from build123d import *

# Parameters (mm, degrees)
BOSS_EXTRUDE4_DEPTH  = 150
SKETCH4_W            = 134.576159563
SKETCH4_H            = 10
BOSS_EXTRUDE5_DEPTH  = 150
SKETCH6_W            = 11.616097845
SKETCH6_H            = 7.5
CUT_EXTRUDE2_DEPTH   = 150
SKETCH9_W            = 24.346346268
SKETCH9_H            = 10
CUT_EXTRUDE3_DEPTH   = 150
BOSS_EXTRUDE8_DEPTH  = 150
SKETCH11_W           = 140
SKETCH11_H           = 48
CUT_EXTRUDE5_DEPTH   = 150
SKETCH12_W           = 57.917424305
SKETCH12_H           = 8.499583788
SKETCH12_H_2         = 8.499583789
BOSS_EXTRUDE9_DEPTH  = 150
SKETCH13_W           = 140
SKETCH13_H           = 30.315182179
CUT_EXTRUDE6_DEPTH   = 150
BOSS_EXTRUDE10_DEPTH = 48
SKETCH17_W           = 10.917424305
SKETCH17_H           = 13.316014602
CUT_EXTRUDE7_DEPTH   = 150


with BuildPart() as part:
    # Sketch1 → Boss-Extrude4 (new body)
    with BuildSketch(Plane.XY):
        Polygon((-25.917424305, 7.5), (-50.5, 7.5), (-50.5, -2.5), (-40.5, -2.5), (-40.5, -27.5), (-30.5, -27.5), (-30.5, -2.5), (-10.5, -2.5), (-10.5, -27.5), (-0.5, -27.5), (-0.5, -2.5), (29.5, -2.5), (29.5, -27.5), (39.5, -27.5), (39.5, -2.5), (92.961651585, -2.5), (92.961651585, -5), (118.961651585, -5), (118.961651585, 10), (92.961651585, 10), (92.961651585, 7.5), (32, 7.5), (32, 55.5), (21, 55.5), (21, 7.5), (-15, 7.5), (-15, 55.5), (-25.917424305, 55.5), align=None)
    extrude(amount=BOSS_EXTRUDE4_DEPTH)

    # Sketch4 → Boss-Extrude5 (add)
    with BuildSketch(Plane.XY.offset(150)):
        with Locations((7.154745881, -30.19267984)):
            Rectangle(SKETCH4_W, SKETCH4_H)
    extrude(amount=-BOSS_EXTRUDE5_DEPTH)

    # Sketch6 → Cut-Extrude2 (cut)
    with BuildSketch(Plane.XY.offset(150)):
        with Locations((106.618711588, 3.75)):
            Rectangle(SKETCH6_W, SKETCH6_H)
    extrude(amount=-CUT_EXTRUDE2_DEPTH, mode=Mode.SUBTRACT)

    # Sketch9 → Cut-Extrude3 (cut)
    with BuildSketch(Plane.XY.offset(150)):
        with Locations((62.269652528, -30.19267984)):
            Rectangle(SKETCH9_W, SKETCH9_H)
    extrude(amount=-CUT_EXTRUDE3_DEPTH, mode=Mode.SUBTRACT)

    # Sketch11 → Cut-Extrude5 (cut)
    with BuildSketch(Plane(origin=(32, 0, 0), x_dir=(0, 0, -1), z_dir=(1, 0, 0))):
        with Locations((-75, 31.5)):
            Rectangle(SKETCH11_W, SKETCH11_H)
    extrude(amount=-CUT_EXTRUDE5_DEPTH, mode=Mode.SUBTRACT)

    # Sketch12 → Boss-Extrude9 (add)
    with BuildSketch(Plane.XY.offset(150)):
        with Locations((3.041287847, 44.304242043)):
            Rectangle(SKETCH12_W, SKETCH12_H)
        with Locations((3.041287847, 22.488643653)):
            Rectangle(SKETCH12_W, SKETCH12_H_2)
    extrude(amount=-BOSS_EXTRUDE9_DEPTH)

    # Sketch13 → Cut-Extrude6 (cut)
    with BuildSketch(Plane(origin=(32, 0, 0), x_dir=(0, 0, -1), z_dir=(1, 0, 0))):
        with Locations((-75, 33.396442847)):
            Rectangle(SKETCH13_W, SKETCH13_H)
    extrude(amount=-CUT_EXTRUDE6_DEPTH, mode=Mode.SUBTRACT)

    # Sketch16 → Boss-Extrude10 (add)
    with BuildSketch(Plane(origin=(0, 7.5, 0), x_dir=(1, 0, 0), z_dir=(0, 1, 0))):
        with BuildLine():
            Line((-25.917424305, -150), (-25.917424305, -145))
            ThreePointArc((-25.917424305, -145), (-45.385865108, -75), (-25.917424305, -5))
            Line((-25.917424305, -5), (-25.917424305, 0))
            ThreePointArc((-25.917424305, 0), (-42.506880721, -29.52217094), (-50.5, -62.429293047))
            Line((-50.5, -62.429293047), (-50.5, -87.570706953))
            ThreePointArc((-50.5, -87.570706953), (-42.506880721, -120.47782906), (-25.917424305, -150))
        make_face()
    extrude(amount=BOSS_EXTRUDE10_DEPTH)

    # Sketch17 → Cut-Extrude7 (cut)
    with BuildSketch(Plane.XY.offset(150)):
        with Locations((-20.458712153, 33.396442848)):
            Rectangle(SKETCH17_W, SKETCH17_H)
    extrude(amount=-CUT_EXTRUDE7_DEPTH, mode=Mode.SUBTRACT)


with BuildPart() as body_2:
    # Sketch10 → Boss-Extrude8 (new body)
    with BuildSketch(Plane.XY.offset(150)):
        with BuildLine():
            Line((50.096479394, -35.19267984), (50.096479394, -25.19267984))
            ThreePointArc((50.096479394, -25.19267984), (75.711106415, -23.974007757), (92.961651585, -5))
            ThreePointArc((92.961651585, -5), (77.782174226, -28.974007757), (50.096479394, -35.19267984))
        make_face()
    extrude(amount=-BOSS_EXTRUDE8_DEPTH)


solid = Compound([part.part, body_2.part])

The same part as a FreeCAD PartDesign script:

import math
import FreeCAD as App
import Part
import Sketcher
from FreeCAD import Vector
Q = App.Units.Quantity

doc = App.newDocument("Part")
body = doc.addObject("PartDesign::Body", "Body")

sketch1 = body.newObject("Sketcher::SketchObject", "Sketch")
sketch1.AttachmentSupport = (doc.getObject("XY_Plane"), [""])
sketch1.MapMode = "FlatFace"
sketch1.addGeometry([
    Part.LineSegment(Vector(-25.9, 7.5, 0), Vector(-50.5, 7.5, 0)),
    Part.LineSegment(Vector(-50.5, 7.5, 0), Vector(-50.5, -2.5, 0)),
    Part.LineSegment(Vector(-50.5, -2.5, 0), Vector(-40.5, -2.5, 0)),
    Part.LineSegment(Vector(-40.5, -2.5, 0), Vector(-40.5, -27.5, 0)),
    Part.LineSegment(Vector(-40.5, -27.5, 0), Vector(-30.5, -27.5, 0)),
    Part.LineSegment(Vector(-30.5, -27.5, 0), Vector(-30.5, -2.5, 0)),
    Part.LineSegment(Vector(-30.5, -2.5, 0), Vector(-10.5, -2.5, 0)),
    Part.LineSegment(Vector(-10.5, -2.5, 0), Vector(-10.5, -27.5, 0)),
    Part.LineSegment(Vector(-10.5, -27.5, 0), Vector(-0.5, -27.5, 0)),
    Part.LineSegment(Vector(-0.5, -27.5, 0), Vector(-0.5, -2.5, 0)),
    Part.LineSegment(Vector(-0.5, -2.5, 0), Vector(29.5, -2.5, 0)),
    Part.LineSegment(Vector(29.5, -2.5, 0), Vector(29.5, -27.5, 0)),
    Part.LineSegment(Vector(29.5, -27.5, 0), Vector(39.5, -27.5, 0)),
    Part.LineSegment(Vector(39.5, -27.5, 0), Vector(39.5, -2.5, 0)),
    Part.LineSegment(Vector(39.5, -2.5, 0), Vector(93, -2.5, 0)),
    Part.LineSegment(Vector(93, -2.5, 0), Vector(93, -5, 0)),
    Part.LineSegment(Vector(93, -5, 0), Vector(119, -5, 0)),
    Part.LineSegment(Vector(119, -5, 0), Vector(119, 10, 0)),
    Part.LineSegment(Vector(119, 10, 0), Vector(93, 10, 0)),
    Part.LineSegment(Vector(93, 10, 0), Vector(93, 7.5, 0)),
    Part.LineSegment(Vector(93, 7.5, 0), Vector(32, 7.5, 0)),
    Part.LineSegment(Vector(32, 7.5, 0), Vector(32, 55.5, 0)),
    Part.LineSegment(Vector(32, 55.5, 0), Vector(21, 55.5, 0)),
    Part.LineSegment(Vector(21, 55.5, 0), Vector(21, 7.5, 0)),
    Part.LineSegment(Vector(21, 7.5, 0), Vector(-15, 7.5, 0)),
    Part.LineSegment(Vector(-15, 7.5, 0), Vector(-15, 55.5, 0)),
    Part.LineSegment(Vector(-15, 55.5, 0), Vector(-25.9, 55.5, 0)),
    Part.LineSegment(Vector(-25.9, 55.5, 0), Vector(-25.9, 7.5, 0)),
], False)
sketch1.addConstraint([
    Sketcher.Constraint("Coincident", 0, 2, 1, 1),
    Sketcher.Constraint("Coincident", 1, 2, 2, 1),
    Sketcher.Constraint("Coincident", 2, 2, 3, 1),
    Sketcher.Constraint("Coincident", 3, 2, 4, 1),
    Sketcher.Constraint("Coincident", 4, 2, 5, 1),
    Sketcher.Constraint("Coincident", 5, 2, 6, 1),
    Sketcher.Constraint("Coincident", 6, 2, 7, 1),
    Sketcher.Constraint("Coincident", 7, 2, 8, 1),
    Sketcher.Constraint("Coincident", 8, 2, 9, 1),
    Sketcher.Constraint("Coincident", 9, 2, 10, 1),
    Sketcher.Constraint("Coincident", 10, 2, 11, 1),
    Sketcher.Constraint("Coincident", 11, 2, 12, 1),
    Sketcher.Constraint("Coincident", 12, 2, 13, 1),
    Sketcher.Constraint("Coincident", 13, 2, 14, 1),
    Sketcher.Constraint("Coincident", 14, 2, 15, 1),
    Sketcher.Constraint("Coincident", 15, 2, 16, 1),
    Sketcher.Constraint("Coincident", 16, 2, 17, 1),
    Sketcher.Constraint("Coincident", 17, 2, 18, 1),
    Sketcher.Constraint("Coincident", 18, 2, 19, 1),
    Sketcher.Constraint("Coincident", 19, 2, 20, 1),
    Sketcher.Constraint("Coincident", 20, 2, 21, 1),
    Sketcher.Constraint("Coincident", 21, 2, 22, 1),
    Sketcher.Constraint("Coincident", 22, 2, 23, 1),
    Sketcher.Constraint("Coincident", 23, 2, 24, 1),
    Sketcher.Constraint("Coincident", 24, 2, 25, 1),
    Sketcher.Constraint("Coincident", 25, 2, 26, 1),
    Sketcher.Constraint("Coincident", 26, 2, 27, 1),
    Sketcher.Constraint("Coincident", 27, 2, 0, 1),
    Sketcher.Constraint("Horizontal", 0),
    Sketcher.Constraint("Vertical", 1),
    Sketcher.Constraint("Horizontal", 2),
    Sketcher.Constraint("Vertical", 3),
    Sketcher.Constraint("Horizontal", 4),
    Sketcher.Constraint("Vertical", 5),
    Sketcher.Constraint("Horizontal", 6),
    Sketcher.Constraint("Vertical", 7),
    Sketcher.Constraint("Horizontal", 8),
    Sketcher.Constraint("Vertical", 9),
    Sketcher.Constraint("Horizontal", 10),
    Sketcher.Constraint("Vertical", 11),
    Sketcher.Constraint("Horizontal", 12),
    Sketcher.Constraint("Vertical", 13),
    Sketcher.Constraint("Horizontal", 14),
    Sketcher.Constraint("Vertical", 15),
    Sketcher.Constraint("Horizontal", 16),
    Sketcher.Constraint("Vertical", 17),
    Sketcher.Constraint("Horizontal", 18),
    Sketcher.Constraint("Vertical", 19),
    Sketcher.Constraint("Horizontal", 20),
    Sketcher.Constraint("Vertical", 21),
    Sketcher.Constraint("Horizontal", 22),
    Sketcher.Constraint("Vertical", 23),
    Sketcher.Constraint("Horizontal", 24),
    Sketcher.Constraint("Vertical", 25),
    Sketcher.Constraint("Horizontal", 26),
    Sketcher.Constraint("Vertical", 27),
    Sketcher.Constraint("Horizontal", 2, 2, 5, 2),
    Sketcher.Constraint("Horizontal", 4, 2, 7, 2),
    Sketcher.Constraint("Horizontal", 6, 2, 9, 2),
    Sketcher.Constraint("Horizontal", 8, 2, 11, 2),
    Sketcher.Constraint("Horizontal", 10, 2, 13, 2),
    Sketcher.Constraint("Horizontal", 0, 2, 19, 2),
    Sketcher.Constraint("Horizontal", 20, 2, 23, 2),
    Sketcher.Constraint("Horizontal", 22, 2, 25, 2),
    Sketcher.Constraint("Vertical", 15, 2, 18, 2),
    Sketcher.Constraint("Equal", 2, 4),
    Sketcher.Constraint("Equal", 4, 8),
    Sketcher.Constraint("Equal", 8, 12),
    Sketcher.Constraint("Equal", 12, 1),
    Sketcher.Constraint("Equal", 15, 19),
    Sketcher.Constraint("DistanceX", 2, 1, 2, 2, Q("10 mm")),
    Sketcher.Constraint("DistanceX", 6, 1, 6, 2, Q("20 mm")),
    Sketcher.Constraint("DistanceX", 10, 1, 10, 2, Q("30 mm")),
    Sketcher.Constraint("DistanceX", 16, 1, 16, 2, Q("26 mm")),
    Sketcher.Constraint("DistanceX", 22, 2, 22, 1, Q("11 mm")),
    Sketcher.Constraint("DistanceX", 24, 2, 24, 1, Q("36 mm")),
    Sketcher.Constraint("DistanceY", 3, 2, 3, 1, Q("25 mm")),
    Sketcher.Constraint("DistanceY", 17, 1, 17, 2, Q("15 mm")),
    Sketcher.Constraint("DistanceY", 21, 1, 21, 2, Q("48 mm")),
    Sketcher.Constraint("DistanceY", 15, 2, -1, 1, Q("5 mm")),
    Sketcher.Constraint("DistanceX", -1, 1, 20, 2, Q("32 mm")),
    Sketcher.Constraint("DistanceX", 0, 2, -1, 1, Q("50.5 mm")),
    Sketcher.Constraint("DistanceX", 14, 1, 14, 2, Q("53.461652 mm")),
    Sketcher.Constraint("DistanceX", 0, 2, 0, 1, Q("24.582576 mm")),
])
pad1 = body.newObject("PartDesign::Pad", "Pad")
pad1.Profile = sketch1
pad1.Length = 150

sketch2 = body.newObject("Sketcher::SketchObject", "Sketch001")
sketch2.AttachmentSupport = (doc.getObject("XY_Plane"), [""])
sketch2.MapMode = "FlatFace"
sketch2.AttachmentOffset = App.Placement(Vector(0, 0, 150), App.Rotation())
sketch2.addGeometry([
    Part.LineSegment(Vector(-60, -25, 0), Vector(-60, -35, 0)),
    Part.LineSegment(Vector(-60, -35, 0), Vector(74, -35, 0)),
    Part.LineSegment(Vector(74, -35, 0), Vector(74, -25, 0)),
    Part.LineSegment(Vector(74, -25, 0), Vector(-60, -25, 0)),
], False)
sketch2.addConstraint([
    Sketcher.Constraint("Coincident", 0, 2, 1, 1),
    Sketcher.Constraint("Coincident", 1, 2, 2, 1),
    Sketcher.Constraint("Coincident", 2, 2, 3, 1),
    Sketcher.Constraint("Coincident", 3, 2, 0, 1),
    Sketcher.Constraint("Vertical", 0),
    Sketcher.Constraint("Horizontal", 1),
    Sketcher.Constraint("Vertical", 2),
    Sketcher.Constraint("Horizontal", 3),
    Sketcher.Constraint("DistanceY", 0, 2, 0, 1, Q("10 mm")),
    Sketcher.Constraint("DistanceX", 1, 1, 1, 2, Q("134.57616 mm")),
    Sketcher.Constraint("DistanceY", 0, 2, -1, 1, Q("35.19268 mm")),
    Sketcher.Constraint("DistanceX", 0, 2, -1, 1, Q("60.133334 mm")),
])
pad2 = body.newObject("PartDesign::Pad", "Pad001")
pad2.Profile = sketch2
pad2.Length = 150
pad2.Reversed = True

sketch3 = body.newObject("Sketcher::SketchObject", "Sketch002")
sketch3.AttachmentSupport = (doc.getObject("XY_Plane"), [""])
sketch3.MapMode = "FlatFace"
sketch3.AttachmentOffset = App.Placement(Vector(0, 0, 150), App.Rotation())
sketch3.addGeometry([
    Part.LineSegment(Vector(101, 8, 0), Vector(101, 0, 0)),
    Part.LineSegment(Vector(101, 0, 0), Vector(112, 0, 0)),
    Part.LineSegment(Vector(112, 0, 0), Vector(112, 8, 0)),
    Part.LineSegment(Vector(112, 8, 0), Vector(101, 8, 0)),
], False)
sketch3.addConstraint([
    Sketcher.Constraint("Coincident", 0, 2, 1, 1),
    Sketcher.Constraint("Coincident", 1, 2, 2, 1),
    Sketcher.Constraint("Coincident", 2, 2, 3, 1),
    Sketcher.Constraint("Coincident", 3, 2, 0, 1),
    Sketcher.Constraint("Vertical", 0),
    Sketcher.Constraint("Horizontal", 1),
    Sketcher.Constraint("Vertical", 2),
    Sketcher.Constraint("Horizontal", 3),
    Sketcher.Constraint("PointOnObject", 0, 2, -1),
    Sketcher.Constraint("DistanceY", 0, 2, 0, 1, Q("7.5 mm")),
    Sketcher.Constraint("DistanceX", 1, 1, 1, 2, Q("11.616098 mm")),
    Sketcher.Constraint("DistanceX", -1, 1, 1, 2, Q("112.426761 mm")),
])
pocket1 = body.newObject("PartDesign::Pocket", "Pocket")
pocket1.Profile = sketch3
pocket1.Length = 150

sketch4 = body.newObject("Sketcher::SketchObject", "Sketch003")
sketch4.AttachmentSupport = (doc.getObject("XY_Plane"), [""])
sketch4.MapMode = "FlatFace"
sketch4.AttachmentOffset = App.Placement(Vector(0, 0, 150), App.Rotation())
sketch4.addGeometry([
    Part.LineSegment(Vector(50, -25, 0), Vector(50, -35, 0)),
    Part.LineSegment(Vector(50, -35, 0), Vector(74, -35, 0)),
    Part.LineSegment(Vector(74, -35, 0), Vector(74, -25, 0)),
    Part.LineSegment(Vector(74, -25, 0), Vector(50, -25, 0)),
], False)
sketch4.addConstraint([
    Sketcher.Constraint("Coincident", 0, 2, 1, 1),
    Sketcher.Constraint("Coincident", 1, 2, 2, 1),
    Sketcher.Constraint("Coincident", 2, 2, 3, 1),
    Sketcher.Constraint("Coincident", 3, 2, 0, 1),
    Sketcher.Constraint("Vertical", 0),
    Sketcher.Constraint("Horizontal", 1),
    Sketcher.Constraint("Vertical", 2),
    Sketcher.Constraint("Horizontal", 3),
    Sketcher.Constraint("DistanceY", 0, 2, 0, 1, Q("10 mm")),
    Sketcher.Constraint("DistanceX", 1, 1, 1, 2, Q("24.346346 mm")),
    Sketcher.Constraint("DistanceX", -1, 1, 0, 2, Q("50.096479 mm")),
    Sketcher.Constraint("DistanceY", 0, 2, -1, 1, Q("35.19268 mm")),
])
pocket2 = body.newObject("PartDesign::Pocket", "Pocket001")
pocket2.Profile = sketch4
pocket2.Length = 150

sketch5 = body.newObject("Sketcher::SketchObject", "Sketch004")
sketch5.AttachmentSupport = (doc.getObject("YZ_Plane"), [""])
sketch5.MapMode = "FlatFace"
sketch5.AttachmentOffset = App.Placement(Vector(0, 0, 32), App.Rotation())
sketch5.addGeometry([
    Part.LineSegment(Vector(56, 145, 0), Vector(8, 145, 0)),
    Part.LineSegment(Vector(8, 145, 0), Vector(8, 5, 0)),
    Part.LineSegment(Vector(8, 5, 0), Vector(56, 5, 0)),
    Part.LineSegment(Vector(56, 5, 0), Vector(56, 145, 0)),
], False)
sketch5.addConstraint([
    Sketcher.Constraint("Coincident", 0, 2, 1, 1),
    Sketcher.Constraint("Coincident", 1, 2, 2, 1),
    Sketcher.Constraint("Coincident", 2, 2, 3, 1),
    Sketcher.Constraint("Coincident", 3, 2, 0, 1),
    Sketcher.Constraint("Horizontal", 0),
    Sketcher.Constraint("Vertical", 1),
    Sketcher.Constraint("Horizontal", 2),
    Sketcher.Constraint("Vertical", 3),
    Sketcher.Constraint("DistanceX", 0, 2, 0, 1, Q("48 mm")),
    Sketcher.Constraint("DistanceY", 1, 2, 1, 1, Q("140 mm")),
    Sketcher.Constraint("DistanceY", -1, 1, 0, 2, Q("145 mm")),
    Sketcher.Constraint("DistanceX", -1, 1, 0, 2, Q("7.5 mm")),
])
pocket3 = body.newObject("PartDesign::Pocket", "Pocket002")
pocket3.Profile = sketch5
pocket3.Length = 150

sketch6 = body.newObject("Sketcher::SketchObject", "Sketch005")
sketch6.AttachmentSupport = (doc.getObject("XY_Plane"), [""])
sketch6.MapMode = "FlatFace"
sketch6.AttachmentOffset = App.Placement(Vector(0, 0, 150), App.Rotation())
sketch6.addGeometry([
    Part.LineSegment(Vector(-26, 49, 0), Vector(-26, 40, 0)),
    Part.LineSegment(Vector(-26, 40, 0), Vector(32, 40, 0)),
    Part.LineSegment(Vector(32, 40, 0), Vector(32, 49, 0)),
    Part.LineSegment(Vector(32, 49, 0), Vector(-26, 49, 0)),
    Part.LineSegment(Vector(-26, 27, 0), Vector(-26, 18, 0)),
    Part.LineSegment(Vector(-26, 18, 0), Vector(32, 18, 0)),
    Part.LineSegment(Vector(32, 18, 0), Vector(32, 27, 0)),
    Part.LineSegment(Vector(32, 27, 0), Vector(-26, 27, 0)),
], False)
sketch6.addConstraint([
    Sketcher.Constraint("Coincident", 0, 2, 1, 1),
    Sketcher.Constraint("Coincident", 1, 2, 2, 1),
    Sketcher.Constraint("Coincident", 2, 2, 3, 1),
    Sketcher.Constraint("Coincident", 3, 2, 0, 1),
    Sketcher.Constraint("Coincident", 4, 2, 5, 1),
    Sketcher.Constraint("Coincident", 5, 2, 6, 1),
    Sketcher.Constraint("Coincident", 6, 2, 7, 1),
    Sketcher.Constraint("Coincident", 7, 2, 4, 1),
    Sketcher.Constraint("Vertical", 0),
    Sketcher.Constraint("Horizontal", 1),
    Sketcher.Constraint("Vertical", 2),
    Sketcher.Constraint("Horizontal", 3),
    Sketcher.Constraint("Vertical", 4),
    Sketcher.Constraint("Horizontal", 5),
    Sketcher.Constraint("Vertical", 6),
    Sketcher.Constraint("Horizontal", 7),
    Sketcher.Constraint("Vertical", 3, 2, 4, 2),
    Sketcher.Constraint("Vertical", 2, 2, 5, 2),
    Sketcher.Constraint("Equal", 2, 4),
    Sketcher.Constraint("DistanceX", -1, 1, 1, 2, Q("32 mm")),
    Sketcher.Constraint("DistanceY", 4, 2, 0, 2, Q("21.815598 mm")),
    Sketcher.Constraint("DistanceX", 1, 1, 1, 2, Q("57.917424 mm")),
    Sketcher.Constraint("DistanceY", 0, 2, 0, 1, Q("8.499584 mm")),
    Sketcher.Constraint("DistanceY", -1, 1, 0, 2, Q("40.05445 mm")),
])
pad3 = body.newObject("PartDesign::Pad", "Pad002")
pad3.Profile = sketch6
pad3.Length = 150
pad3.Reversed = True

sketch7 = body.newObject("Sketcher::SketchObject", "Sketch006")
sketch7.AttachmentSupport = (doc.getObject("YZ_Plane"), [""])
sketch7.MapMode = "FlatFace"
sketch7.AttachmentOffset = App.Placement(Vector(0, 0, 32), App.Rotation())
sketch7.addGeometry([
    Part.LineSegment(Vector(49, 145, 0), Vector(18, 145, 0)),
    Part.LineSegment(Vector(18, 145, 0), Vector(18, 5, 0)),
    Part.LineSegment(Vector(18, 5, 0), Vector(49, 5, 0)),
    Part.LineSegment(Vector(49, 5, 0), Vector(49, 145, 0)),
], False)
sketch7.addConstraint([
    Sketcher.Constraint("Coincident", 0, 2, 1, 1),
    Sketcher.Constraint("Coincident", 1, 2, 2, 1),
    Sketcher.Constraint("Coincident", 2, 2, 3, 1),
    Sketcher.Constraint("Coincident", 3, 2, 0, 1),
    Sketcher.Constraint("Horizontal", 0),
    Sketcher.Constraint("Vertical", 1),
    Sketcher.Constraint("Horizontal", 2),
    Sketcher.Constraint("Vertical", 3),
    Sketcher.Constraint("DistanceY", 1, 2, 1, 1, Q("140 mm")),
    Sketcher.Constraint("DistanceY", -1, 1, 0, 2, Q("145 mm")),
    Sketcher.Constraint("DistanceX", 0, 2, 0, 1, Q("30.315182 mm")),
    Sketcher.Constraint("DistanceX", -1, 1, 0, 2, Q("18.238852 mm")),
])
pocket4 = body.newObject("PartDesign::Pocket", "Pocket003")
pocket4.Profile = sketch7
pocket4.Length = 150

sketch8 = body.newObject("Sketcher::SketchObject", "Sketch007")
sketch8.AttachmentSupport = (doc.getObject("XZ_Plane"), [""])
sketch8.MapMode = "FlatFace"
sketch8.AttachmentOffset = App.Placement(Vector(0, 0, -7.5), App.Rotation())
sketch8.addGeometry([
    Part.LineSegment(Vector(-26, 150, 0), Vector(-26, 145, 0)),
    Part.ArcOfCircle(Part.Circle(Vector(90, 75, 0), Vector(0, 0, 1), 136), math.radians(149), math.radians(211)),
    Part.LineSegment(Vector(-26, 5, 0), Vector(-26, 0, 0)),
    Part.ArcOfCircle(Part.Circle(Vector(73, 75, 0), Vector(0, 0, 1), 124), math.radians(-174), math.radians(-143)),
    Part.LineSegment(Vector(-50, 62, 0), Vector(-50, 88, 0)),
    Part.ArcOfCircle(Part.Circle(Vector(73, 75, 0), Vector(0, 0, 1), 124), math.radians(143), math.radians(174)),
], False)
sketch8.addConstraint([
    Sketcher.Constraint("Coincident", 0, 2, 1, 1),
    Sketcher.Constraint("Coincident", 1, 2, 2, 1),
    Sketcher.Constraint("Coincident", 2, 2, 3, 2),
    Sketcher.Constraint("Coincident", 3, 1, 4, 1),
    Sketcher.Constraint("Coincident", 4, 2, 5, 2),
    Sketcher.Constraint("Coincident", 5, 1, 0, 1),
    Sketcher.Constraint("Vertical", 0),
    Sketcher.Constraint("Vertical", 2),
    Sketcher.Constraint("Vertical", 4),
    Sketcher.Constraint("Coincident", 5, 3, 3, 3),
    Sketcher.Constraint("Equal", 3, 5),
    Sketcher.Constraint("PointOnObject", 2, 2, -1),
    Sketcher.Constraint("Horizontal", 1, 3, 3, 3),
    Sketcher.Constraint("Vertical", 0, 2, 1, 2),
    Sketcher.Constraint("DistanceY", 0, 2, 0, 1, Q("5 mm")),
    Sketcher.Constraint("DistanceY", -1, 1, 1, 3, Q("75 mm")),
    Sketcher.Constraint("DistanceX", 3, 1, -1, 1, Q("50.5 mm")),
    Sketcher.Constraint("Radius", 1, Q("135.578916 mm")),
    Sketcher.Constraint("Radius", 3, Q("124.125658 mm")),
    Sketcher.Constraint("DistanceY", 4, 1, 4, 2, Q("25.141414 mm")),
])
pad4 = body.newObject("PartDesign::Pad", "Pad003")
pad4.Profile = sketch8
pad4.Length = 48
pad4.Reversed = True

sketch9 = body.newObject("Sketcher::SketchObject", "Sketch008")
sketch9.AttachmentSupport = (doc.getObject("XY_Plane"), [""])
sketch9.MapMode = "FlatFace"
sketch9.AttachmentOffset = App.Placement(Vector(0, 0, 150), App.Rotation())
sketch9.addGeometry([
    Part.LineSegment(Vector(-26, 40, 0), Vector(-26, 27, 0)),
    Part.LineSegment(Vector(-26, 27, 0), Vector(-15, 27, 0)),
    Part.LineSegment(Vector(-15, 27, 0), Vector(-15, 40, 0)),
    Part.LineSegment(Vector(-15, 40, 0), Vector(-26, 40, 0)),
], False)
sketch9.addConstraint([
    Sketcher.Constraint("Coincident", 0, 2, 1, 1),
    Sketcher.Constraint("Coincident", 1, 2, 2, 1),
    Sketcher.Constraint("Coincident", 2, 2, 3, 1),
    Sketcher.Constraint("Coincident", 3, 2, 0, 1),
    Sketcher.Constraint("Vertical", 0),
    Sketcher.Constraint("Horizontal", 1),
    Sketcher.Constraint("Vertical", 2),
    Sketcher.Constraint("Horizontal", 3),
    Sketcher.Constraint("DistanceX", 1, 2, -1, 1, Q("15 mm")),
    Sketcher.Constraint("DistanceX", 1, 1, 1, 2, Q("10.917424 mm")),
    Sketcher.Constraint("DistanceY", 0, 2, 0, 1, Q("13.316015 mm")),
    Sketcher.Constraint("DistanceY", -1, 1, 2, 2, Q("40.05445 mm")),
])
pocket5 = body.newObject("PartDesign::Pocket", "Pocket004")
pocket5.Profile = sketch9
pocket5.Length = 150
body2 = doc.addObject("PartDesign::Body", "Body001")

sketch10 = body2.newObject("Sketcher::SketchObject", "Sketch009")
sketch10.AttachmentSupport = (doc.getObject("XY_Plane001"), [""])
sketch10.MapMode = "FlatFace"
sketch10.AttachmentOffset = App.Placement(Vector(0, 0, 150), App.Rotation())
sketch10.addGeometry([
    Part.LineSegment(Vector(50, -25, 0), Vector(50, -35, 0)),
    Part.ArcOfCircle(Part.Circle(Vector(56, 1, 0), Vector(0, 0, 1), 37), math.radians(-100), math.radians(-10)),
    Part.ArcOfCircle(Part.Circle(Vector(61, 6, 0), Vector(0, 0, 1), 34), math.radians(-110), math.radians(-20)),
], False)
sketch10.addConstraint([
    Sketcher.Constraint("Coincident", 0, 2, 1, 1),
    Sketcher.Constraint("Coincident", 1, 2, 2, 2),
    Sketcher.Constraint("Coincident", 2, 1, 0, 1),
    Sketcher.Constraint("Vertical", 0),
    Sketcher.Constraint("DistanceY", 0, 2, 0, 1, Q("10 mm")),
    Sketcher.Constraint("DistanceY", 1, 2, -1, 1, Q("5 mm")),
    Sketcher.Constraint("DistanceX", 1, 3, 2, 3, Q("5 mm")),
    Sketcher.Constraint("DistanceY", 1, 3, 2, 3, Q("5 mm")),
    Sketcher.Constraint("Radius", 1, Q("37.074391 mm")),
    Sketcher.Constraint("Radius", 2, Q("33.50498 mm")),
    Sketcher.Constraint("DistanceX", -1, 1, 0, 2, Q("50.096479 mm")),
])
pad5 = body2.newObject("PartDesign::Pad", "Pad004")
pad5.Profile = sketch10
pad5.Length = 150
pad5.Reversed = True

doc.recompute()
